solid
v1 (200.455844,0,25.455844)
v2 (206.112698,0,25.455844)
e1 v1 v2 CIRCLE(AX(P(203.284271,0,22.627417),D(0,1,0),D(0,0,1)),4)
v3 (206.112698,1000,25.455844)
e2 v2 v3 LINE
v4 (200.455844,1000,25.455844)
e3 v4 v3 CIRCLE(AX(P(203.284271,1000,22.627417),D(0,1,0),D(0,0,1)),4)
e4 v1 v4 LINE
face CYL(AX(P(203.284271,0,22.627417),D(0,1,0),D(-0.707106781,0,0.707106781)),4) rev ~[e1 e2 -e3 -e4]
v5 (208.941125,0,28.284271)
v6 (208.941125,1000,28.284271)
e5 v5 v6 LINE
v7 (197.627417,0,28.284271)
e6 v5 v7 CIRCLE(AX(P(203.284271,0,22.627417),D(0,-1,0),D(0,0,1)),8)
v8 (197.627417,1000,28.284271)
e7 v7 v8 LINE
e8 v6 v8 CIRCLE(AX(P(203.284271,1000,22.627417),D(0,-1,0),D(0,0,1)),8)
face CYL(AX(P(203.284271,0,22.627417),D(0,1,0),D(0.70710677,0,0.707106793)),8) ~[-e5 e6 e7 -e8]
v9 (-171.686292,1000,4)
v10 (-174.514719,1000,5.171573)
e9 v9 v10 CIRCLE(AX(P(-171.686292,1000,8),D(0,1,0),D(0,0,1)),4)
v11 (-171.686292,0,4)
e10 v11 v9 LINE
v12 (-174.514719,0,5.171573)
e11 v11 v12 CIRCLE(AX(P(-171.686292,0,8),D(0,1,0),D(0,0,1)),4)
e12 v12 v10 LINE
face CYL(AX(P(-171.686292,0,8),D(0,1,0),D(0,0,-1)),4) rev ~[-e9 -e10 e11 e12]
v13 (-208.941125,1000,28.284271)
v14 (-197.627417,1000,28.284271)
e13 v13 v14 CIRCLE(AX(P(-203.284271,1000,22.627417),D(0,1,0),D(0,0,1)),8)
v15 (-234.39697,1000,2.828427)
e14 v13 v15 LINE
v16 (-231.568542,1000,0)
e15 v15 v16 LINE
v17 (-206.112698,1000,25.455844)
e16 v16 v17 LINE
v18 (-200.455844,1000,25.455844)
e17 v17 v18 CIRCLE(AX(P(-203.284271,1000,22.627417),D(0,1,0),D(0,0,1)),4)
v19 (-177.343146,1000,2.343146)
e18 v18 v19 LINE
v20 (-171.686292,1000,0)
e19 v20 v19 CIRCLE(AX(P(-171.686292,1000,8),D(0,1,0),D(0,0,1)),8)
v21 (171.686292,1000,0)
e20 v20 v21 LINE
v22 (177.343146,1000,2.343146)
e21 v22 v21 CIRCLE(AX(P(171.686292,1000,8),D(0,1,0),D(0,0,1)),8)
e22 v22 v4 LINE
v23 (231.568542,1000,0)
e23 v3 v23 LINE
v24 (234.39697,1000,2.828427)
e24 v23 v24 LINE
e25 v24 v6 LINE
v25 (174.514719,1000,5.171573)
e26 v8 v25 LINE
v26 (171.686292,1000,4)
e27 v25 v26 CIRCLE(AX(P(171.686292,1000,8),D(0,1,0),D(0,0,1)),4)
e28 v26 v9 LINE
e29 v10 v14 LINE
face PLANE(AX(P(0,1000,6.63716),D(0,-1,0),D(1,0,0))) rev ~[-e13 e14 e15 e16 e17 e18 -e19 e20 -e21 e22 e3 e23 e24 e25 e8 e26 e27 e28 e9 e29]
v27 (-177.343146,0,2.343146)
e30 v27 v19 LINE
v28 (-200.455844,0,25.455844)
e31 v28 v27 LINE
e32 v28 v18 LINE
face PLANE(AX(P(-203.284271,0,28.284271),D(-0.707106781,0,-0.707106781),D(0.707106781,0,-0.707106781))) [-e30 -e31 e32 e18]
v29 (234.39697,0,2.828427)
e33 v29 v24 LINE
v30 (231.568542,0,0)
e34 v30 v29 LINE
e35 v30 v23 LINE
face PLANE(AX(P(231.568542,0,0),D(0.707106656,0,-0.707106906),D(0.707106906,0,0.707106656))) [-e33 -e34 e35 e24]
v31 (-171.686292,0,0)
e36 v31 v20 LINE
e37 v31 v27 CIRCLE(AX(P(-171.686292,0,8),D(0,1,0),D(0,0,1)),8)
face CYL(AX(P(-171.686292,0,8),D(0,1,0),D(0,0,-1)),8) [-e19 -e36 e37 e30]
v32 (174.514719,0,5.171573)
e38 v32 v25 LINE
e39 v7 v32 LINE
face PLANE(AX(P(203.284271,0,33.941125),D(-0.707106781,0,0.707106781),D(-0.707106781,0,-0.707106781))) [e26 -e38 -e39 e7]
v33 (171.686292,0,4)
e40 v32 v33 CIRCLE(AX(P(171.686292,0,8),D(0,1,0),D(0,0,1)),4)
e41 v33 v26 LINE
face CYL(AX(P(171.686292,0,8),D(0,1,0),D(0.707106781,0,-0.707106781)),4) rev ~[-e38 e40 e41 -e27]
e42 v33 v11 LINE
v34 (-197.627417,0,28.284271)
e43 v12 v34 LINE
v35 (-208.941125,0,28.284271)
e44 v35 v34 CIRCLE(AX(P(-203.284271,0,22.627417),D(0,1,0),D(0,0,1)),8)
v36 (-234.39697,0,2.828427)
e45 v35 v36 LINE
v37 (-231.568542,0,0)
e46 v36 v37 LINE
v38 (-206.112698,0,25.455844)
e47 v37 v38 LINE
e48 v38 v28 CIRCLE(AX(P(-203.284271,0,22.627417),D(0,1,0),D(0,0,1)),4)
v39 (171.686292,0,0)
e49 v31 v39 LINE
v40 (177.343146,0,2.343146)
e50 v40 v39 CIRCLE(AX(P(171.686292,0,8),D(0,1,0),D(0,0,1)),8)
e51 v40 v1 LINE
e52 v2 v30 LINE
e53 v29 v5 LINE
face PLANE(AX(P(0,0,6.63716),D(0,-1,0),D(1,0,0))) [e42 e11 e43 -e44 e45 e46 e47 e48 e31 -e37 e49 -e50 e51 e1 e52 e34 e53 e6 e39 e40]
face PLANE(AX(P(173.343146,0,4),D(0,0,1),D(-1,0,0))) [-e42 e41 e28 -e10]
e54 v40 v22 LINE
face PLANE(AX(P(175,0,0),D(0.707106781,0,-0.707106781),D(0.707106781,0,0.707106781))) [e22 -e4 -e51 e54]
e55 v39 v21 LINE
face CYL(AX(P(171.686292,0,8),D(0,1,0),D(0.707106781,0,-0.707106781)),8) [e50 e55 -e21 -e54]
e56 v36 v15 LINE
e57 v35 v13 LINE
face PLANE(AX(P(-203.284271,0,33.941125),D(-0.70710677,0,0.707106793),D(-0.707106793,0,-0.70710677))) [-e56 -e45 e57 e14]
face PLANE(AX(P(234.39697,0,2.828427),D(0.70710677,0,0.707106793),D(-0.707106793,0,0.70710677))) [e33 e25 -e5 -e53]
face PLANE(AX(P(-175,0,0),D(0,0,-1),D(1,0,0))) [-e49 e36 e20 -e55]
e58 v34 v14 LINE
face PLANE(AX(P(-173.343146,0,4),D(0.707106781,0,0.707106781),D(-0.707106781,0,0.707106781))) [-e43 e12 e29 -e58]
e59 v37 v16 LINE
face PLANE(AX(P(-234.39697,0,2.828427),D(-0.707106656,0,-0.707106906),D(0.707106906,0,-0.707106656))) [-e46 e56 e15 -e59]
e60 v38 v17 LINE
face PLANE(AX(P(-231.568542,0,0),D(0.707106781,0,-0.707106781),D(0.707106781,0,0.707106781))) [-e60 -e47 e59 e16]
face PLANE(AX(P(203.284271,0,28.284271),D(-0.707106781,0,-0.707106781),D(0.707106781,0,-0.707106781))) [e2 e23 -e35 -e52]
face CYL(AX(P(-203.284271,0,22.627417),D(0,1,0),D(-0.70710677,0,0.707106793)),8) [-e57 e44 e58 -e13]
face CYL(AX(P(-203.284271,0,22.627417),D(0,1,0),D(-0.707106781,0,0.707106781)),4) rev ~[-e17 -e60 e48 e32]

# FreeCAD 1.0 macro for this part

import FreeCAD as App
import Part
import Sketcher

V = App.Vector
Q = App.Units.Quantity


def edges_at(feature, points):
    """Names of the edges that pass closest to the given points."""
    edges = feature.Shape.Edges
    near = lambda p: min(range(len(edges)), key=lambda i: edges[i].distToShape(Part.Vertex(*p))[0])
    return sorted({f"Edge{near(p) + 1}" for p in points})


def add_polygon(sketch, points):
    """Adds a closed chain of lines whose ends are joined by coincident constraints."""
    first, n = sketch.GeometryCount, len(points)
    for a, b in zip(points, points[1:] + points[:1]):
        sketch.addGeometry(Part.LineSegment(App.Vector(*a, 0), App.Vector(*b, 0)), False)
    for i in range(n):
        sketch.addConstraint(Sketcher.Constraint("Coincident", first + i, 2, first + (i + 1) % n, 1))

doc = App.newDocument("Part")
body = doc.addObject("PartDesign::Body", "Body")

sketch1 = body.newObject("Sketcher::SketchObject", "Sketch")
sketch1.AttachmentSupport = (doc.getObject("XZ_Plane"), [""])
sketch1.MapMode = "FlatFace"
add_polygon(sketch1, [(-175, 0), (175, 0), (203.3, 28.3), (231.6, 0), (234.4, 2.8), (203.3, 33.9), (173.3, 4), (-173.3, 4), (-203.3, 33.9), (-234.4, 2.8), (-231.6, 0), (-203.3, 28.3)])
sketch1.addConstraint(Sketcher.Constraint("Horizontal", 0))
sketch1.addConstraint(Sketcher.Constraint("Horizontal", 6))
sketch1.addConstraint(Sketcher.Constraint("Symmetric", 2, 2, 9, 2, -1, 1))
sketch1.addConstraint(Sketcher.Constraint("Symmetric", 0, 2, 11, 2, -1, 1))
sketch1.addConstraint(Sketcher.Constraint("Symmetric", 4, 2, 7, 2, -2))
sketch1.addConstraint(Sketcher.Constraint("Symmetric", 3, 2, 8, 2, -2))
sketch1.addConstraint(Sketcher.Constraint("Symmetric", 1, 2, 10, 2, -2))
sketch1.addConstraint(Sketcher.Constraint("PointOnObject", 2, 2, -1))
sketch1.addConstraint(Sketcher.Constraint("Perpendicular", 1, 2))
sketch1.addConstraint(Sketcher.Constraint("Perpendicular", 2, 3))
sketch1.addConstraint(Sketcher.Constraint("Perpendicular", 3, 4))
sketch1.addConstraint(Sketcher.Constraint("Perpendicular", 4, 5))
sketch1.addConstraint(Sketcher.Constraint("Perpendicular", 5, 7))
sketch1.addConstraint(Sketcher.Constraint("Perpendicular", 7, 8))
sketch1.addConstraint(Sketcher.Constraint("Vertical", 1, 2, 4, 2))
sketch1.addConstraint(Sketcher.Constraint("DistanceX", 0, 1, 0, 2, Q("350 mm")))
sketch1.addConstraint(Sketcher.Constraint("Distance", 1, Q("40 mm")))
sketch1.addConstraint(Sketcher.Constraint("Distance", 3, Q("4.000001 mm")))
sketch1.addConstraint(Sketcher.Constraint("DistanceY", -1, 1, 5, 2, Q("4 mm")))
pad1 = body.newObject("PartDesign::Pad", "Pad")
pad1.Profile = sketch1
pad1.Length = 1000
pad1.Reversed = True
doc.recompute()

fillet = body.newObject("PartDesign::Fillet", "Fillet")
fillet.Base = (pad1, edges_at(pad1, [
    (-203.284, 500, 28.284),
    (203.284, 500, 28.284),
    (-173.343, 500, 4),
    (173.343, 500, 4),
]))
fillet.Radius = 4
doc.recompute()

fillet2 = body.newObject("PartDesign::Fillet", "Fillet001")
fillet2.Base = (fillet, edges_at(fillet, [
    (-203.284, 500, 33.941),
    (203.284, 500, 33.941),
    (-175, 500, 0),
    (175, 500, 0),
]))
fillet2.Radius = 8

doc.recompute()
